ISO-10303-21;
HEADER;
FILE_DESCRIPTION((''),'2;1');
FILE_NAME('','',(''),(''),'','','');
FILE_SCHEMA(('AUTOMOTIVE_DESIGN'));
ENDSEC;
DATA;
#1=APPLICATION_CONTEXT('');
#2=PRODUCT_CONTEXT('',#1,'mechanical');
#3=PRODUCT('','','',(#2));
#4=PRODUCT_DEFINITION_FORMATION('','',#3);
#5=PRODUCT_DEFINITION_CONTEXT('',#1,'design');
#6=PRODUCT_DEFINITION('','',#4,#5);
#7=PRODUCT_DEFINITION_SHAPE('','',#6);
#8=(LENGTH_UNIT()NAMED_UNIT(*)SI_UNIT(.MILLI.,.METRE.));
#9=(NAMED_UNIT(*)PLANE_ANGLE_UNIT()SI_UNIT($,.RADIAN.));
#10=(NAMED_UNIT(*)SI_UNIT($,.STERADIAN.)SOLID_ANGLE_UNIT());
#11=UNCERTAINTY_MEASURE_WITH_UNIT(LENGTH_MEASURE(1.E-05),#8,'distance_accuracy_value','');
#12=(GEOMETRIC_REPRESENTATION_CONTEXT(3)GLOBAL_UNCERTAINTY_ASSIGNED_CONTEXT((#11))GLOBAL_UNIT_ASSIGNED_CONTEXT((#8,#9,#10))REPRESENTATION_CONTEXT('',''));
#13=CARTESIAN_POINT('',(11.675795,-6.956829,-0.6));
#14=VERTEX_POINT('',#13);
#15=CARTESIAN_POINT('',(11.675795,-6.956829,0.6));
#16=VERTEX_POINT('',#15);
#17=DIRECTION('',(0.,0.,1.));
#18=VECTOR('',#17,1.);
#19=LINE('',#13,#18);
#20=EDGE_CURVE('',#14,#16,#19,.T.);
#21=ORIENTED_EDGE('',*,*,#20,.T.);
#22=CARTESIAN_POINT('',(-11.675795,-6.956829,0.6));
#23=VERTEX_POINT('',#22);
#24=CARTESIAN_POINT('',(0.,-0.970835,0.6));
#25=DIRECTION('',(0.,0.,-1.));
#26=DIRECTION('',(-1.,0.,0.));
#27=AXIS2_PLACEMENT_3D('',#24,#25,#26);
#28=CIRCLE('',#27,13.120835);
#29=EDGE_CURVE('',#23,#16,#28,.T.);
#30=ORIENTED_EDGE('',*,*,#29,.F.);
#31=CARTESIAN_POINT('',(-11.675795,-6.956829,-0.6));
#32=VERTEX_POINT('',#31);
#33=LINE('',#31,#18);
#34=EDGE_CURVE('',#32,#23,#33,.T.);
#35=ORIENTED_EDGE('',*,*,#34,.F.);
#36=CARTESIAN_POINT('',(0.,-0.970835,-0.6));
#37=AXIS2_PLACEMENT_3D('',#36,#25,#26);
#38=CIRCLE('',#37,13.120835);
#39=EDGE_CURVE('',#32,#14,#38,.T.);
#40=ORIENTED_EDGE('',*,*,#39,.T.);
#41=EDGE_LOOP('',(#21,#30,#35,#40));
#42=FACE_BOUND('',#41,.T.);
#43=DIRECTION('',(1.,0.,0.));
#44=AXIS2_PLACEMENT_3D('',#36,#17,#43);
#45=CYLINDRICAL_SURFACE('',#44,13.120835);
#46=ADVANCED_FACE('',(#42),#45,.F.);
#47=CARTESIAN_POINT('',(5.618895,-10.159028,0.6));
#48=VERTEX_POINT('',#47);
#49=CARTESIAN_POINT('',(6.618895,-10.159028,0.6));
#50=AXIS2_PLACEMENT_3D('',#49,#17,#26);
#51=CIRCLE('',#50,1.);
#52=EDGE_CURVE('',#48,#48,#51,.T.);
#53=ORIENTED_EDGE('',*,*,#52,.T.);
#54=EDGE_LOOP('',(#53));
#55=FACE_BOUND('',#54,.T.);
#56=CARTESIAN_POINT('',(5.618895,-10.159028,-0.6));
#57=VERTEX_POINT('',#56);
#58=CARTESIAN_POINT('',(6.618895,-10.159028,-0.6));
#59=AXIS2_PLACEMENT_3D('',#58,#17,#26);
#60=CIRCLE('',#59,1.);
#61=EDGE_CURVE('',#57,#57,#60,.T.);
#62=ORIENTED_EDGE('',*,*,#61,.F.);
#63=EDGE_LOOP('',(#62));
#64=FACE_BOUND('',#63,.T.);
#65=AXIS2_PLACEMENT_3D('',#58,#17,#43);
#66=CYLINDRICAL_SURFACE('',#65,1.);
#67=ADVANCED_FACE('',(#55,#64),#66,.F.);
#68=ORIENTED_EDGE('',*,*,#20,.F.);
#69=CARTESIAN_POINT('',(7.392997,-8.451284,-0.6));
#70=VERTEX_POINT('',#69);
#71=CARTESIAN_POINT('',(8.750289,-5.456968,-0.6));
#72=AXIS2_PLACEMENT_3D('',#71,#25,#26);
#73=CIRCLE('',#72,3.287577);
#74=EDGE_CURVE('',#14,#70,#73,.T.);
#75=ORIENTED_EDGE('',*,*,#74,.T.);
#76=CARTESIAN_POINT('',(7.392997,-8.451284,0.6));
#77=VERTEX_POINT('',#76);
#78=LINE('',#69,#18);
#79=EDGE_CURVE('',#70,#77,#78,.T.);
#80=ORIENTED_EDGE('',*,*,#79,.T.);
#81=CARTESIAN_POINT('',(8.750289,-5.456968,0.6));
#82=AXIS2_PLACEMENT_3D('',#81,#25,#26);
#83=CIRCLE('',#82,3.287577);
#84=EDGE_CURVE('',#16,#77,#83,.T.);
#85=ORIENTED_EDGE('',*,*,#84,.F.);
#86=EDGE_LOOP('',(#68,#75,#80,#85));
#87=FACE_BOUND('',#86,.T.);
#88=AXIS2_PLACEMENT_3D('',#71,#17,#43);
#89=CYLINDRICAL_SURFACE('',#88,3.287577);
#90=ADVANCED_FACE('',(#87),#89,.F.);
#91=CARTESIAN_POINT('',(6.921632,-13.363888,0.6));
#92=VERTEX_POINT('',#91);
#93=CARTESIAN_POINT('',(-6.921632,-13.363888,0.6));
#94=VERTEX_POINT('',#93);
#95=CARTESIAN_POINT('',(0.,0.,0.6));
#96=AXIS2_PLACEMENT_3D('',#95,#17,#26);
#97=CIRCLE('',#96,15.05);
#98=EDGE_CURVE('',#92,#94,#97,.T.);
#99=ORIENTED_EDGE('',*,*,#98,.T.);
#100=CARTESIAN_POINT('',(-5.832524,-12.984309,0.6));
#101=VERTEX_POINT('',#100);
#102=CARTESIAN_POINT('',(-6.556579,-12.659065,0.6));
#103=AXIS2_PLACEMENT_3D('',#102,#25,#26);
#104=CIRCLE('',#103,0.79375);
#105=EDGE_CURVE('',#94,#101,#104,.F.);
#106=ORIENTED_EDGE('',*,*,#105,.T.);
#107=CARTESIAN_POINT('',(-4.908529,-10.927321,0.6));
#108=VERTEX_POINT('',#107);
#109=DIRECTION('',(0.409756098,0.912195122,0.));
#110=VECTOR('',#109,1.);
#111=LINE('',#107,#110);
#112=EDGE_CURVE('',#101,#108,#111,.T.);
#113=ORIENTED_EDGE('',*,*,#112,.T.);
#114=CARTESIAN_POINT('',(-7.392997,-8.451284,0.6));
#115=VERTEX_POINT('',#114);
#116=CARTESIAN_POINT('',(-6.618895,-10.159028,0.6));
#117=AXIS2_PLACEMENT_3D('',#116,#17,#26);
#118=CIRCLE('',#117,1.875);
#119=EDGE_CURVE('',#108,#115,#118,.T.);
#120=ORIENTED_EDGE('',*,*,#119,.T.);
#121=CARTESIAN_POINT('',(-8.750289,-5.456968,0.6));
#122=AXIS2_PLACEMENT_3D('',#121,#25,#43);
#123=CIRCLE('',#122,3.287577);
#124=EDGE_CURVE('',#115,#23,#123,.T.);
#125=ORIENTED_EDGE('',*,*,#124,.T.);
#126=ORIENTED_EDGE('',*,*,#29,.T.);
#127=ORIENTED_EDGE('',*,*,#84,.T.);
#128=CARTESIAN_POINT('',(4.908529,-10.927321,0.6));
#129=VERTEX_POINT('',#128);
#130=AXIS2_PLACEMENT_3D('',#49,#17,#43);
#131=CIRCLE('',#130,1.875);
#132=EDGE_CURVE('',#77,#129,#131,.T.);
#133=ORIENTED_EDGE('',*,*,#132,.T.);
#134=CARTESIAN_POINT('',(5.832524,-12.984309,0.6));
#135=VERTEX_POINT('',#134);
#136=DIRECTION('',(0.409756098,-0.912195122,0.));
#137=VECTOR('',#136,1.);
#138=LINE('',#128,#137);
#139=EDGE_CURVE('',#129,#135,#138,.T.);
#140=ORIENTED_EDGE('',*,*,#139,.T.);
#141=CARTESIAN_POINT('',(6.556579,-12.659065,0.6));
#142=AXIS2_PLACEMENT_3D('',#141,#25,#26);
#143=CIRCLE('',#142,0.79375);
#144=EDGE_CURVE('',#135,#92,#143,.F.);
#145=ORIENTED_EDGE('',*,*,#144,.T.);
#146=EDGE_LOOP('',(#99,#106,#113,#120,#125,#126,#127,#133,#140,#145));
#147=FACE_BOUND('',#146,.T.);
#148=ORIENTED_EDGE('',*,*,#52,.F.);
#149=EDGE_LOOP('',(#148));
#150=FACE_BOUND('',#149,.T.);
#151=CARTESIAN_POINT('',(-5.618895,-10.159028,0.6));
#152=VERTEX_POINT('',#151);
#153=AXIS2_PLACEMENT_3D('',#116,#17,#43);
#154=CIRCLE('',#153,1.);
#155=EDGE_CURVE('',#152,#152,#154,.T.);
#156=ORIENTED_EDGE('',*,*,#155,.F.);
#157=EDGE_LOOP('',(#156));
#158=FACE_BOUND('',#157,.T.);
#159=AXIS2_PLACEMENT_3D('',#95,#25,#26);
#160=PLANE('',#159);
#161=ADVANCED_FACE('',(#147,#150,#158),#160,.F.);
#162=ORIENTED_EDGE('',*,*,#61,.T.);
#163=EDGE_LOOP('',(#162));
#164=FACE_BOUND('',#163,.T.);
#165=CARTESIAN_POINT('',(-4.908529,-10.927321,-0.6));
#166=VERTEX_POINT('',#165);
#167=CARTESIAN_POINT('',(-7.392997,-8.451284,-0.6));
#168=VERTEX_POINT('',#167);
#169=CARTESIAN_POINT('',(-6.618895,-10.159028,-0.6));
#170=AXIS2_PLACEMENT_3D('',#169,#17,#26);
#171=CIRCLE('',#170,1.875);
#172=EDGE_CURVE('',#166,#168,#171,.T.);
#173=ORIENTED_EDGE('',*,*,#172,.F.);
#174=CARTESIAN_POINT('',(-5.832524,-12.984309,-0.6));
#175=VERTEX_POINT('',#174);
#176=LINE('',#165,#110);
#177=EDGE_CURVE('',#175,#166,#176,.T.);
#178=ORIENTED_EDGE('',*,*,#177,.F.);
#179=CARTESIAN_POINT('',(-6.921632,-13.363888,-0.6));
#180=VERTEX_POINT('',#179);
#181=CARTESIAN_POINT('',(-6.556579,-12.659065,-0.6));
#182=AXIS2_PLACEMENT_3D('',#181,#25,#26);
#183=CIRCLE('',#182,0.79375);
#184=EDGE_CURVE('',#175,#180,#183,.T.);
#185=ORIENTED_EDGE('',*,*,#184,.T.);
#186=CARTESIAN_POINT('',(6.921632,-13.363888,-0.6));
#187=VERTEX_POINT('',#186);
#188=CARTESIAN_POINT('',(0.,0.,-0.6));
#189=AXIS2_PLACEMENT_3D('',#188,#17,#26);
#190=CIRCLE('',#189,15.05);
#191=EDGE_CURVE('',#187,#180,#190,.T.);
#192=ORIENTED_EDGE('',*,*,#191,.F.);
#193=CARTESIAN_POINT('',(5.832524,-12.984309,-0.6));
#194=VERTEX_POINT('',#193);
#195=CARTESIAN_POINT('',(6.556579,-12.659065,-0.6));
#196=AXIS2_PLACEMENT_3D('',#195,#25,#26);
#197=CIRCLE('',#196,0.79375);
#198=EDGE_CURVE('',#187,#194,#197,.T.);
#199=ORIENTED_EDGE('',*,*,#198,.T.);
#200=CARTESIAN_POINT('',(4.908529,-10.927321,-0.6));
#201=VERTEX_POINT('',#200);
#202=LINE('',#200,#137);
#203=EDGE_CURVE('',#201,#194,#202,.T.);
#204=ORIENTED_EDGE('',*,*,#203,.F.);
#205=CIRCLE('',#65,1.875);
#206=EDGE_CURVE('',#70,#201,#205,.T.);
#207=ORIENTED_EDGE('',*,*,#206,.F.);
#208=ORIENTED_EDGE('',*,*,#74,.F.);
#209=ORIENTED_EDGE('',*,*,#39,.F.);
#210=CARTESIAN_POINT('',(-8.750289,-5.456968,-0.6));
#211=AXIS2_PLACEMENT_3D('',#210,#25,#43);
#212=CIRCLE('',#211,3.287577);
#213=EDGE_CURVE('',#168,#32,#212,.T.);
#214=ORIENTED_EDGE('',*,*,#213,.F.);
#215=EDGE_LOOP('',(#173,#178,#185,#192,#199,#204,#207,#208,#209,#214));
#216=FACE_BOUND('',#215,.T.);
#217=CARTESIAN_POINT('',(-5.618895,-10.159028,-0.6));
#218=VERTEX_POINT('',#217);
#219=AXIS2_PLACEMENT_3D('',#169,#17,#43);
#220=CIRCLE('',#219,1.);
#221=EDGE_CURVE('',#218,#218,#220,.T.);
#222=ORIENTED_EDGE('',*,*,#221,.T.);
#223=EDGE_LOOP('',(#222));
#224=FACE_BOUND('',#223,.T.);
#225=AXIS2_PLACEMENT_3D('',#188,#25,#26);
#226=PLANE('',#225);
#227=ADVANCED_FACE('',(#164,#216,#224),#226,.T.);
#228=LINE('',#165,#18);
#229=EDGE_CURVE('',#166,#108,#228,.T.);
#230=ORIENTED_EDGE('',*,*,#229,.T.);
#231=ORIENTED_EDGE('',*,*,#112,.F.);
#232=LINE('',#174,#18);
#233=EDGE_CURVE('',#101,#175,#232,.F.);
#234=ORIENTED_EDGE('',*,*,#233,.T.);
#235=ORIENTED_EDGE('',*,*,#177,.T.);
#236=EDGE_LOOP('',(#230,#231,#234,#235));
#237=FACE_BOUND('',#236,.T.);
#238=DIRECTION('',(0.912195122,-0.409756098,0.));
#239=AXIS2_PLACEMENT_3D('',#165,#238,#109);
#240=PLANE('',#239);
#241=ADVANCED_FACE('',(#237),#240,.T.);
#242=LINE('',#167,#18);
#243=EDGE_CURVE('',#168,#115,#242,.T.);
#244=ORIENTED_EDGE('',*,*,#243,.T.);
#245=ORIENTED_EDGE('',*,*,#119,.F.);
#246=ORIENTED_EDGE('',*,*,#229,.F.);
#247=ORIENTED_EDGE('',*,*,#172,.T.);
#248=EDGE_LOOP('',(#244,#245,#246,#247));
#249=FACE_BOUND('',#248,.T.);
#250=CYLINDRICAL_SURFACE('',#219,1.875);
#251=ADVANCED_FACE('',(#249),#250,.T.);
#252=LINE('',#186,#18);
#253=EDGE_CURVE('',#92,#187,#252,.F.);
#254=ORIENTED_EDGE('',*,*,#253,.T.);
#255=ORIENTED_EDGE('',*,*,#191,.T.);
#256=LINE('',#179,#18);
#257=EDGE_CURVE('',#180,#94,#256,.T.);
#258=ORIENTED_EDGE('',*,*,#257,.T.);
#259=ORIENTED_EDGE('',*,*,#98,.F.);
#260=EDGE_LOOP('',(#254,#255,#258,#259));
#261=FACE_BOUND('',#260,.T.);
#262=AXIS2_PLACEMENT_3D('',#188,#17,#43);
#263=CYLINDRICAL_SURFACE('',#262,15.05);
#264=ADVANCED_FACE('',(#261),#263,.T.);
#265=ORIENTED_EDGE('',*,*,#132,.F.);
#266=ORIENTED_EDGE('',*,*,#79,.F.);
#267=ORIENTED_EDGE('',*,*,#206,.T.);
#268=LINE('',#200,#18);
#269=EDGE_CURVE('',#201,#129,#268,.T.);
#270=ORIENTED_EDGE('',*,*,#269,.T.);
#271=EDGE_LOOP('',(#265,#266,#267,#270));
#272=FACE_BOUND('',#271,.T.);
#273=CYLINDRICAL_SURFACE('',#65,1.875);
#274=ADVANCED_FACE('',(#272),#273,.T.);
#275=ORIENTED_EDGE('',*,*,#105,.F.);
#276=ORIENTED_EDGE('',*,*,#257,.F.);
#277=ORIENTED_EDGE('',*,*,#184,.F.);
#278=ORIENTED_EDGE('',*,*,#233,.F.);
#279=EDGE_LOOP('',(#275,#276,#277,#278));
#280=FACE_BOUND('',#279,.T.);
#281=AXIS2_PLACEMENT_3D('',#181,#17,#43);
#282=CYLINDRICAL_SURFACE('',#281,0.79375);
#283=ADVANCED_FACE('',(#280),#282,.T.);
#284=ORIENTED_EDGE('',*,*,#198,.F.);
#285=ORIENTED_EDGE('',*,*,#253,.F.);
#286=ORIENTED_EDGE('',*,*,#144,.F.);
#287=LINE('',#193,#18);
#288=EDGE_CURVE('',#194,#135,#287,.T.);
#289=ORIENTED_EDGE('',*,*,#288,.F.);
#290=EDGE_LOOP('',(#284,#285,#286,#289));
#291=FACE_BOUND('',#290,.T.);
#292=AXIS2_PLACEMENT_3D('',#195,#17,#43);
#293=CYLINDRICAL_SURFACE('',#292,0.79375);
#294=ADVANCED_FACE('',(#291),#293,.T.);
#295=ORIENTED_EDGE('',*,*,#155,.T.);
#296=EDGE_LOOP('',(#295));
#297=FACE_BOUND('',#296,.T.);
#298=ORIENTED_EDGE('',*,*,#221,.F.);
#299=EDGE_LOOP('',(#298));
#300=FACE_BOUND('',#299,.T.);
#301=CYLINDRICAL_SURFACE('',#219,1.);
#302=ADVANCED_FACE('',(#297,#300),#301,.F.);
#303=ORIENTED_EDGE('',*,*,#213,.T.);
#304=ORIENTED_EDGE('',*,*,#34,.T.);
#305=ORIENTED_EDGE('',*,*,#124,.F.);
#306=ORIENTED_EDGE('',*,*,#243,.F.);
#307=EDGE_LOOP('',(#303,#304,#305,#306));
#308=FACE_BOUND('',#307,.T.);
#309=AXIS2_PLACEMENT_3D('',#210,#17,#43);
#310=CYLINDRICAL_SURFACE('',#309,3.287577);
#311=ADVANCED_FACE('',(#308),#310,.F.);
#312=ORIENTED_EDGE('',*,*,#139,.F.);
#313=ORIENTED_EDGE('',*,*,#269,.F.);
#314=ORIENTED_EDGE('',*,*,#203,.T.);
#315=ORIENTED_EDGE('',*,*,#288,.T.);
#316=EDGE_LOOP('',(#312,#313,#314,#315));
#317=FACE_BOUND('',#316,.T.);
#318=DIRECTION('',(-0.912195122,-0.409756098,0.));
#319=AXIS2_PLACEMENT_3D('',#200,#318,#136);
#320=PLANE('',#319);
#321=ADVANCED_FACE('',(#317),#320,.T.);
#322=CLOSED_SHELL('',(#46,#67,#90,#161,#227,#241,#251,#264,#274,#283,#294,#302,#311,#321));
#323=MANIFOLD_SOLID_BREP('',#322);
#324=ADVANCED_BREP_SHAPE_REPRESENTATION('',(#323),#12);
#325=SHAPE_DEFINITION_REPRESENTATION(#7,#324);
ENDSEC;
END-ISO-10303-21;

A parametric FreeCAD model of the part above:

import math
import FreeCAD as App
import Part
import Sketcher

V = App.Vector
Q = App.Units.Quantity


def edges_at(feature, points):
    """Names of the edges that pass closest to the given points."""
    edges = feature.Shape.Edges
    near = lambda p: min(range(len(edges)), key=lambda i: edges[i].distToShape(Part.Vertex(*p))[0])
    return sorted({f"Edge{near(p) + 1}" for p in points})

doc = App.newDocument("Part")
body = doc.addObject("PartDesign::Body", "Body")

sketch1 = body.newObject("Sketcher::SketchObject", "Sketch")
sketch1.AttachmentSupport = (doc.getObject("XY_Plane"), [""])
sketch1.MapMode = "FlatFace"
sketch1.addGeometry(Part.LineSegment(V(-6.2, -13.7, 0), V(-4.9, -10.9, 0)), False)
sketch1.addGeometry(Part.ArcOfCircle(Part.Circle(V(-6.6, -10.2, 0), V(0, 0, 1), 1.9), math.radians(-24), math.radians(114)), False)
sketch1.addGeometry(Part.ArcOfCircle(Part.Circle(V(-8.8, -5.5, 0), V(0, 0, 1), 3.3), math.radians(-153), math.radians(-66)), False)
sketch1.addGeometry(Part.ArcOfCircle(Part.Circle(V(0, -1, 0), V(0, 0, 1), 13.1), math.radians(-27), math.radians(207)), False)
sketch1.addGeometry(Part.ArcOfCircle(Part.Circle(V(8.8, -5.5, 0), V(0, 0, 1), 3.3), math.radians(-114), math.radians(-27)), False)
sketch1.addGeometry(Part.ArcOfCircle(Part.Circle(V(6.6, -10.2, 0), V(0, 0, 1), 1.9), math.radians(66), math.radians(204)), False)
sketch1.addGeometry(Part.LineSegment(V(4.9, -10.9, 0), V(6.2, -13.7, 0)), False)
sketch1.addGeometry(Part.ArcOfCircle(Part.Circle(V(0, 0, 0), V(0, 0, 1), 15.1), math.radians(-66), math.radians(246)), False)
sketch1.addGeometry(Part.Circle(V(6.6, -10.2, 0), V(0, 0, 1), 1), False)
sketch1.addGeometry(Part.Circle(V(-6.6, -10.2, 0), V(0, 0, 1), 1), False)
sketch1.addConstraint(Sketcher.Constraint("Tangent", 0, 2, 1, 1))
sketch1.addConstraint(Sketcher.Constraint("Tangent", 1, 2, 2, 2))
sketch1.addConstraint(Sketcher.Constraint("Tangent", 2, 1, 3, 2))
sketch1.addConstraint(Sketcher.Constraint("Tangent", 3, 1, 4, 2))
sketch1.addConstraint(Sketcher.Constraint("Tangent", 4, 1, 5, 1))
sketch1.addConstraint(Sketcher.Constraint("Tangent", 5, 2, 6, 1))
sketch1.addConstraint(Sketcher.Constraint("Coincident", 6, 2, 7, 1))
sketch1.addConstraint(Sketcher.Constraint("Coincident", 7, 2, 0, 1))
sketch1.addConstraint(Sketcher.Constraint("Coincident", 7, 3, -1, 1))
sketch1.addConstraint(Sketcher.Constraint("Coincident", 8, 3, 5, 3))
sketch1.addConstraint(Sketcher.Constraint("Coincident", 9, 3, 1, 3))
sketch1.addConstraint(Sketcher.Constraint("Equal", 2, 4))
sketch1.addConstraint(Sketcher.Constraint("Equal", 1, 5))
sketch1.addConstraint(Sketcher.Constraint("Equal", 8, 9))
sketch1.addConstraint(Sketcher.Constraint("Symmetric", 2, 3, 4, 3, -2))
sketch1.addConstraint(Sketcher.Constraint("Symmetric", 0, 2, 5, 2, -2))
sketch1.addConstraint(Sketcher.Constraint("Diameter", 8, Q("2 mm")))
sketch1.addConstraint(Sketcher.Constraint("Radius", 7, Q("15.05 mm")))
sketch1.addConstraint(Sketcher.Constraint("Radius", 1, Q("1.875 mm")))
sketch1.addConstraint(Sketcher.Constraint("Radius", 2, Q("3.287577 mm")))
sketch1.addConstraint(Sketcher.Constraint("Radius", 3, Q("13.120835 mm")))
sketch1.addConstraint(Sketcher.Constraint("DistanceX", 2, 1, 1, 3, Q("5.0569 mm")))
sketch1.addConstraint(Sketcher.Constraint("DistanceY", 1, 3, 2, 1, Q("3.2022 mm")))
sketch1.addConstraint(Sketcher.Constraint("DistanceX", 5, 2, 6, 2, Q("1.2583 mm")))
sketch1.addConstraint(Sketcher.Constraint("Distance", 0, Q("3.070851 mm")))
pad1 = body.newObject("PartDesign::Pad", "Pad")
pad1.Profile = sketch1
pad1.Type = "TwoLengths"
pad1.Length = 0.6
pad1.Length2 = 0.6
doc.recompute()

fillet = body.newObject("PartDesign::Fillet", "Fillet")
fillet.Base = (pad1, edges_at(pad1, [(6.167, -13.729, 0), (-6.167, -13.729, 0)]))
fillet.Radius = 0.79375

doc.recompute()
